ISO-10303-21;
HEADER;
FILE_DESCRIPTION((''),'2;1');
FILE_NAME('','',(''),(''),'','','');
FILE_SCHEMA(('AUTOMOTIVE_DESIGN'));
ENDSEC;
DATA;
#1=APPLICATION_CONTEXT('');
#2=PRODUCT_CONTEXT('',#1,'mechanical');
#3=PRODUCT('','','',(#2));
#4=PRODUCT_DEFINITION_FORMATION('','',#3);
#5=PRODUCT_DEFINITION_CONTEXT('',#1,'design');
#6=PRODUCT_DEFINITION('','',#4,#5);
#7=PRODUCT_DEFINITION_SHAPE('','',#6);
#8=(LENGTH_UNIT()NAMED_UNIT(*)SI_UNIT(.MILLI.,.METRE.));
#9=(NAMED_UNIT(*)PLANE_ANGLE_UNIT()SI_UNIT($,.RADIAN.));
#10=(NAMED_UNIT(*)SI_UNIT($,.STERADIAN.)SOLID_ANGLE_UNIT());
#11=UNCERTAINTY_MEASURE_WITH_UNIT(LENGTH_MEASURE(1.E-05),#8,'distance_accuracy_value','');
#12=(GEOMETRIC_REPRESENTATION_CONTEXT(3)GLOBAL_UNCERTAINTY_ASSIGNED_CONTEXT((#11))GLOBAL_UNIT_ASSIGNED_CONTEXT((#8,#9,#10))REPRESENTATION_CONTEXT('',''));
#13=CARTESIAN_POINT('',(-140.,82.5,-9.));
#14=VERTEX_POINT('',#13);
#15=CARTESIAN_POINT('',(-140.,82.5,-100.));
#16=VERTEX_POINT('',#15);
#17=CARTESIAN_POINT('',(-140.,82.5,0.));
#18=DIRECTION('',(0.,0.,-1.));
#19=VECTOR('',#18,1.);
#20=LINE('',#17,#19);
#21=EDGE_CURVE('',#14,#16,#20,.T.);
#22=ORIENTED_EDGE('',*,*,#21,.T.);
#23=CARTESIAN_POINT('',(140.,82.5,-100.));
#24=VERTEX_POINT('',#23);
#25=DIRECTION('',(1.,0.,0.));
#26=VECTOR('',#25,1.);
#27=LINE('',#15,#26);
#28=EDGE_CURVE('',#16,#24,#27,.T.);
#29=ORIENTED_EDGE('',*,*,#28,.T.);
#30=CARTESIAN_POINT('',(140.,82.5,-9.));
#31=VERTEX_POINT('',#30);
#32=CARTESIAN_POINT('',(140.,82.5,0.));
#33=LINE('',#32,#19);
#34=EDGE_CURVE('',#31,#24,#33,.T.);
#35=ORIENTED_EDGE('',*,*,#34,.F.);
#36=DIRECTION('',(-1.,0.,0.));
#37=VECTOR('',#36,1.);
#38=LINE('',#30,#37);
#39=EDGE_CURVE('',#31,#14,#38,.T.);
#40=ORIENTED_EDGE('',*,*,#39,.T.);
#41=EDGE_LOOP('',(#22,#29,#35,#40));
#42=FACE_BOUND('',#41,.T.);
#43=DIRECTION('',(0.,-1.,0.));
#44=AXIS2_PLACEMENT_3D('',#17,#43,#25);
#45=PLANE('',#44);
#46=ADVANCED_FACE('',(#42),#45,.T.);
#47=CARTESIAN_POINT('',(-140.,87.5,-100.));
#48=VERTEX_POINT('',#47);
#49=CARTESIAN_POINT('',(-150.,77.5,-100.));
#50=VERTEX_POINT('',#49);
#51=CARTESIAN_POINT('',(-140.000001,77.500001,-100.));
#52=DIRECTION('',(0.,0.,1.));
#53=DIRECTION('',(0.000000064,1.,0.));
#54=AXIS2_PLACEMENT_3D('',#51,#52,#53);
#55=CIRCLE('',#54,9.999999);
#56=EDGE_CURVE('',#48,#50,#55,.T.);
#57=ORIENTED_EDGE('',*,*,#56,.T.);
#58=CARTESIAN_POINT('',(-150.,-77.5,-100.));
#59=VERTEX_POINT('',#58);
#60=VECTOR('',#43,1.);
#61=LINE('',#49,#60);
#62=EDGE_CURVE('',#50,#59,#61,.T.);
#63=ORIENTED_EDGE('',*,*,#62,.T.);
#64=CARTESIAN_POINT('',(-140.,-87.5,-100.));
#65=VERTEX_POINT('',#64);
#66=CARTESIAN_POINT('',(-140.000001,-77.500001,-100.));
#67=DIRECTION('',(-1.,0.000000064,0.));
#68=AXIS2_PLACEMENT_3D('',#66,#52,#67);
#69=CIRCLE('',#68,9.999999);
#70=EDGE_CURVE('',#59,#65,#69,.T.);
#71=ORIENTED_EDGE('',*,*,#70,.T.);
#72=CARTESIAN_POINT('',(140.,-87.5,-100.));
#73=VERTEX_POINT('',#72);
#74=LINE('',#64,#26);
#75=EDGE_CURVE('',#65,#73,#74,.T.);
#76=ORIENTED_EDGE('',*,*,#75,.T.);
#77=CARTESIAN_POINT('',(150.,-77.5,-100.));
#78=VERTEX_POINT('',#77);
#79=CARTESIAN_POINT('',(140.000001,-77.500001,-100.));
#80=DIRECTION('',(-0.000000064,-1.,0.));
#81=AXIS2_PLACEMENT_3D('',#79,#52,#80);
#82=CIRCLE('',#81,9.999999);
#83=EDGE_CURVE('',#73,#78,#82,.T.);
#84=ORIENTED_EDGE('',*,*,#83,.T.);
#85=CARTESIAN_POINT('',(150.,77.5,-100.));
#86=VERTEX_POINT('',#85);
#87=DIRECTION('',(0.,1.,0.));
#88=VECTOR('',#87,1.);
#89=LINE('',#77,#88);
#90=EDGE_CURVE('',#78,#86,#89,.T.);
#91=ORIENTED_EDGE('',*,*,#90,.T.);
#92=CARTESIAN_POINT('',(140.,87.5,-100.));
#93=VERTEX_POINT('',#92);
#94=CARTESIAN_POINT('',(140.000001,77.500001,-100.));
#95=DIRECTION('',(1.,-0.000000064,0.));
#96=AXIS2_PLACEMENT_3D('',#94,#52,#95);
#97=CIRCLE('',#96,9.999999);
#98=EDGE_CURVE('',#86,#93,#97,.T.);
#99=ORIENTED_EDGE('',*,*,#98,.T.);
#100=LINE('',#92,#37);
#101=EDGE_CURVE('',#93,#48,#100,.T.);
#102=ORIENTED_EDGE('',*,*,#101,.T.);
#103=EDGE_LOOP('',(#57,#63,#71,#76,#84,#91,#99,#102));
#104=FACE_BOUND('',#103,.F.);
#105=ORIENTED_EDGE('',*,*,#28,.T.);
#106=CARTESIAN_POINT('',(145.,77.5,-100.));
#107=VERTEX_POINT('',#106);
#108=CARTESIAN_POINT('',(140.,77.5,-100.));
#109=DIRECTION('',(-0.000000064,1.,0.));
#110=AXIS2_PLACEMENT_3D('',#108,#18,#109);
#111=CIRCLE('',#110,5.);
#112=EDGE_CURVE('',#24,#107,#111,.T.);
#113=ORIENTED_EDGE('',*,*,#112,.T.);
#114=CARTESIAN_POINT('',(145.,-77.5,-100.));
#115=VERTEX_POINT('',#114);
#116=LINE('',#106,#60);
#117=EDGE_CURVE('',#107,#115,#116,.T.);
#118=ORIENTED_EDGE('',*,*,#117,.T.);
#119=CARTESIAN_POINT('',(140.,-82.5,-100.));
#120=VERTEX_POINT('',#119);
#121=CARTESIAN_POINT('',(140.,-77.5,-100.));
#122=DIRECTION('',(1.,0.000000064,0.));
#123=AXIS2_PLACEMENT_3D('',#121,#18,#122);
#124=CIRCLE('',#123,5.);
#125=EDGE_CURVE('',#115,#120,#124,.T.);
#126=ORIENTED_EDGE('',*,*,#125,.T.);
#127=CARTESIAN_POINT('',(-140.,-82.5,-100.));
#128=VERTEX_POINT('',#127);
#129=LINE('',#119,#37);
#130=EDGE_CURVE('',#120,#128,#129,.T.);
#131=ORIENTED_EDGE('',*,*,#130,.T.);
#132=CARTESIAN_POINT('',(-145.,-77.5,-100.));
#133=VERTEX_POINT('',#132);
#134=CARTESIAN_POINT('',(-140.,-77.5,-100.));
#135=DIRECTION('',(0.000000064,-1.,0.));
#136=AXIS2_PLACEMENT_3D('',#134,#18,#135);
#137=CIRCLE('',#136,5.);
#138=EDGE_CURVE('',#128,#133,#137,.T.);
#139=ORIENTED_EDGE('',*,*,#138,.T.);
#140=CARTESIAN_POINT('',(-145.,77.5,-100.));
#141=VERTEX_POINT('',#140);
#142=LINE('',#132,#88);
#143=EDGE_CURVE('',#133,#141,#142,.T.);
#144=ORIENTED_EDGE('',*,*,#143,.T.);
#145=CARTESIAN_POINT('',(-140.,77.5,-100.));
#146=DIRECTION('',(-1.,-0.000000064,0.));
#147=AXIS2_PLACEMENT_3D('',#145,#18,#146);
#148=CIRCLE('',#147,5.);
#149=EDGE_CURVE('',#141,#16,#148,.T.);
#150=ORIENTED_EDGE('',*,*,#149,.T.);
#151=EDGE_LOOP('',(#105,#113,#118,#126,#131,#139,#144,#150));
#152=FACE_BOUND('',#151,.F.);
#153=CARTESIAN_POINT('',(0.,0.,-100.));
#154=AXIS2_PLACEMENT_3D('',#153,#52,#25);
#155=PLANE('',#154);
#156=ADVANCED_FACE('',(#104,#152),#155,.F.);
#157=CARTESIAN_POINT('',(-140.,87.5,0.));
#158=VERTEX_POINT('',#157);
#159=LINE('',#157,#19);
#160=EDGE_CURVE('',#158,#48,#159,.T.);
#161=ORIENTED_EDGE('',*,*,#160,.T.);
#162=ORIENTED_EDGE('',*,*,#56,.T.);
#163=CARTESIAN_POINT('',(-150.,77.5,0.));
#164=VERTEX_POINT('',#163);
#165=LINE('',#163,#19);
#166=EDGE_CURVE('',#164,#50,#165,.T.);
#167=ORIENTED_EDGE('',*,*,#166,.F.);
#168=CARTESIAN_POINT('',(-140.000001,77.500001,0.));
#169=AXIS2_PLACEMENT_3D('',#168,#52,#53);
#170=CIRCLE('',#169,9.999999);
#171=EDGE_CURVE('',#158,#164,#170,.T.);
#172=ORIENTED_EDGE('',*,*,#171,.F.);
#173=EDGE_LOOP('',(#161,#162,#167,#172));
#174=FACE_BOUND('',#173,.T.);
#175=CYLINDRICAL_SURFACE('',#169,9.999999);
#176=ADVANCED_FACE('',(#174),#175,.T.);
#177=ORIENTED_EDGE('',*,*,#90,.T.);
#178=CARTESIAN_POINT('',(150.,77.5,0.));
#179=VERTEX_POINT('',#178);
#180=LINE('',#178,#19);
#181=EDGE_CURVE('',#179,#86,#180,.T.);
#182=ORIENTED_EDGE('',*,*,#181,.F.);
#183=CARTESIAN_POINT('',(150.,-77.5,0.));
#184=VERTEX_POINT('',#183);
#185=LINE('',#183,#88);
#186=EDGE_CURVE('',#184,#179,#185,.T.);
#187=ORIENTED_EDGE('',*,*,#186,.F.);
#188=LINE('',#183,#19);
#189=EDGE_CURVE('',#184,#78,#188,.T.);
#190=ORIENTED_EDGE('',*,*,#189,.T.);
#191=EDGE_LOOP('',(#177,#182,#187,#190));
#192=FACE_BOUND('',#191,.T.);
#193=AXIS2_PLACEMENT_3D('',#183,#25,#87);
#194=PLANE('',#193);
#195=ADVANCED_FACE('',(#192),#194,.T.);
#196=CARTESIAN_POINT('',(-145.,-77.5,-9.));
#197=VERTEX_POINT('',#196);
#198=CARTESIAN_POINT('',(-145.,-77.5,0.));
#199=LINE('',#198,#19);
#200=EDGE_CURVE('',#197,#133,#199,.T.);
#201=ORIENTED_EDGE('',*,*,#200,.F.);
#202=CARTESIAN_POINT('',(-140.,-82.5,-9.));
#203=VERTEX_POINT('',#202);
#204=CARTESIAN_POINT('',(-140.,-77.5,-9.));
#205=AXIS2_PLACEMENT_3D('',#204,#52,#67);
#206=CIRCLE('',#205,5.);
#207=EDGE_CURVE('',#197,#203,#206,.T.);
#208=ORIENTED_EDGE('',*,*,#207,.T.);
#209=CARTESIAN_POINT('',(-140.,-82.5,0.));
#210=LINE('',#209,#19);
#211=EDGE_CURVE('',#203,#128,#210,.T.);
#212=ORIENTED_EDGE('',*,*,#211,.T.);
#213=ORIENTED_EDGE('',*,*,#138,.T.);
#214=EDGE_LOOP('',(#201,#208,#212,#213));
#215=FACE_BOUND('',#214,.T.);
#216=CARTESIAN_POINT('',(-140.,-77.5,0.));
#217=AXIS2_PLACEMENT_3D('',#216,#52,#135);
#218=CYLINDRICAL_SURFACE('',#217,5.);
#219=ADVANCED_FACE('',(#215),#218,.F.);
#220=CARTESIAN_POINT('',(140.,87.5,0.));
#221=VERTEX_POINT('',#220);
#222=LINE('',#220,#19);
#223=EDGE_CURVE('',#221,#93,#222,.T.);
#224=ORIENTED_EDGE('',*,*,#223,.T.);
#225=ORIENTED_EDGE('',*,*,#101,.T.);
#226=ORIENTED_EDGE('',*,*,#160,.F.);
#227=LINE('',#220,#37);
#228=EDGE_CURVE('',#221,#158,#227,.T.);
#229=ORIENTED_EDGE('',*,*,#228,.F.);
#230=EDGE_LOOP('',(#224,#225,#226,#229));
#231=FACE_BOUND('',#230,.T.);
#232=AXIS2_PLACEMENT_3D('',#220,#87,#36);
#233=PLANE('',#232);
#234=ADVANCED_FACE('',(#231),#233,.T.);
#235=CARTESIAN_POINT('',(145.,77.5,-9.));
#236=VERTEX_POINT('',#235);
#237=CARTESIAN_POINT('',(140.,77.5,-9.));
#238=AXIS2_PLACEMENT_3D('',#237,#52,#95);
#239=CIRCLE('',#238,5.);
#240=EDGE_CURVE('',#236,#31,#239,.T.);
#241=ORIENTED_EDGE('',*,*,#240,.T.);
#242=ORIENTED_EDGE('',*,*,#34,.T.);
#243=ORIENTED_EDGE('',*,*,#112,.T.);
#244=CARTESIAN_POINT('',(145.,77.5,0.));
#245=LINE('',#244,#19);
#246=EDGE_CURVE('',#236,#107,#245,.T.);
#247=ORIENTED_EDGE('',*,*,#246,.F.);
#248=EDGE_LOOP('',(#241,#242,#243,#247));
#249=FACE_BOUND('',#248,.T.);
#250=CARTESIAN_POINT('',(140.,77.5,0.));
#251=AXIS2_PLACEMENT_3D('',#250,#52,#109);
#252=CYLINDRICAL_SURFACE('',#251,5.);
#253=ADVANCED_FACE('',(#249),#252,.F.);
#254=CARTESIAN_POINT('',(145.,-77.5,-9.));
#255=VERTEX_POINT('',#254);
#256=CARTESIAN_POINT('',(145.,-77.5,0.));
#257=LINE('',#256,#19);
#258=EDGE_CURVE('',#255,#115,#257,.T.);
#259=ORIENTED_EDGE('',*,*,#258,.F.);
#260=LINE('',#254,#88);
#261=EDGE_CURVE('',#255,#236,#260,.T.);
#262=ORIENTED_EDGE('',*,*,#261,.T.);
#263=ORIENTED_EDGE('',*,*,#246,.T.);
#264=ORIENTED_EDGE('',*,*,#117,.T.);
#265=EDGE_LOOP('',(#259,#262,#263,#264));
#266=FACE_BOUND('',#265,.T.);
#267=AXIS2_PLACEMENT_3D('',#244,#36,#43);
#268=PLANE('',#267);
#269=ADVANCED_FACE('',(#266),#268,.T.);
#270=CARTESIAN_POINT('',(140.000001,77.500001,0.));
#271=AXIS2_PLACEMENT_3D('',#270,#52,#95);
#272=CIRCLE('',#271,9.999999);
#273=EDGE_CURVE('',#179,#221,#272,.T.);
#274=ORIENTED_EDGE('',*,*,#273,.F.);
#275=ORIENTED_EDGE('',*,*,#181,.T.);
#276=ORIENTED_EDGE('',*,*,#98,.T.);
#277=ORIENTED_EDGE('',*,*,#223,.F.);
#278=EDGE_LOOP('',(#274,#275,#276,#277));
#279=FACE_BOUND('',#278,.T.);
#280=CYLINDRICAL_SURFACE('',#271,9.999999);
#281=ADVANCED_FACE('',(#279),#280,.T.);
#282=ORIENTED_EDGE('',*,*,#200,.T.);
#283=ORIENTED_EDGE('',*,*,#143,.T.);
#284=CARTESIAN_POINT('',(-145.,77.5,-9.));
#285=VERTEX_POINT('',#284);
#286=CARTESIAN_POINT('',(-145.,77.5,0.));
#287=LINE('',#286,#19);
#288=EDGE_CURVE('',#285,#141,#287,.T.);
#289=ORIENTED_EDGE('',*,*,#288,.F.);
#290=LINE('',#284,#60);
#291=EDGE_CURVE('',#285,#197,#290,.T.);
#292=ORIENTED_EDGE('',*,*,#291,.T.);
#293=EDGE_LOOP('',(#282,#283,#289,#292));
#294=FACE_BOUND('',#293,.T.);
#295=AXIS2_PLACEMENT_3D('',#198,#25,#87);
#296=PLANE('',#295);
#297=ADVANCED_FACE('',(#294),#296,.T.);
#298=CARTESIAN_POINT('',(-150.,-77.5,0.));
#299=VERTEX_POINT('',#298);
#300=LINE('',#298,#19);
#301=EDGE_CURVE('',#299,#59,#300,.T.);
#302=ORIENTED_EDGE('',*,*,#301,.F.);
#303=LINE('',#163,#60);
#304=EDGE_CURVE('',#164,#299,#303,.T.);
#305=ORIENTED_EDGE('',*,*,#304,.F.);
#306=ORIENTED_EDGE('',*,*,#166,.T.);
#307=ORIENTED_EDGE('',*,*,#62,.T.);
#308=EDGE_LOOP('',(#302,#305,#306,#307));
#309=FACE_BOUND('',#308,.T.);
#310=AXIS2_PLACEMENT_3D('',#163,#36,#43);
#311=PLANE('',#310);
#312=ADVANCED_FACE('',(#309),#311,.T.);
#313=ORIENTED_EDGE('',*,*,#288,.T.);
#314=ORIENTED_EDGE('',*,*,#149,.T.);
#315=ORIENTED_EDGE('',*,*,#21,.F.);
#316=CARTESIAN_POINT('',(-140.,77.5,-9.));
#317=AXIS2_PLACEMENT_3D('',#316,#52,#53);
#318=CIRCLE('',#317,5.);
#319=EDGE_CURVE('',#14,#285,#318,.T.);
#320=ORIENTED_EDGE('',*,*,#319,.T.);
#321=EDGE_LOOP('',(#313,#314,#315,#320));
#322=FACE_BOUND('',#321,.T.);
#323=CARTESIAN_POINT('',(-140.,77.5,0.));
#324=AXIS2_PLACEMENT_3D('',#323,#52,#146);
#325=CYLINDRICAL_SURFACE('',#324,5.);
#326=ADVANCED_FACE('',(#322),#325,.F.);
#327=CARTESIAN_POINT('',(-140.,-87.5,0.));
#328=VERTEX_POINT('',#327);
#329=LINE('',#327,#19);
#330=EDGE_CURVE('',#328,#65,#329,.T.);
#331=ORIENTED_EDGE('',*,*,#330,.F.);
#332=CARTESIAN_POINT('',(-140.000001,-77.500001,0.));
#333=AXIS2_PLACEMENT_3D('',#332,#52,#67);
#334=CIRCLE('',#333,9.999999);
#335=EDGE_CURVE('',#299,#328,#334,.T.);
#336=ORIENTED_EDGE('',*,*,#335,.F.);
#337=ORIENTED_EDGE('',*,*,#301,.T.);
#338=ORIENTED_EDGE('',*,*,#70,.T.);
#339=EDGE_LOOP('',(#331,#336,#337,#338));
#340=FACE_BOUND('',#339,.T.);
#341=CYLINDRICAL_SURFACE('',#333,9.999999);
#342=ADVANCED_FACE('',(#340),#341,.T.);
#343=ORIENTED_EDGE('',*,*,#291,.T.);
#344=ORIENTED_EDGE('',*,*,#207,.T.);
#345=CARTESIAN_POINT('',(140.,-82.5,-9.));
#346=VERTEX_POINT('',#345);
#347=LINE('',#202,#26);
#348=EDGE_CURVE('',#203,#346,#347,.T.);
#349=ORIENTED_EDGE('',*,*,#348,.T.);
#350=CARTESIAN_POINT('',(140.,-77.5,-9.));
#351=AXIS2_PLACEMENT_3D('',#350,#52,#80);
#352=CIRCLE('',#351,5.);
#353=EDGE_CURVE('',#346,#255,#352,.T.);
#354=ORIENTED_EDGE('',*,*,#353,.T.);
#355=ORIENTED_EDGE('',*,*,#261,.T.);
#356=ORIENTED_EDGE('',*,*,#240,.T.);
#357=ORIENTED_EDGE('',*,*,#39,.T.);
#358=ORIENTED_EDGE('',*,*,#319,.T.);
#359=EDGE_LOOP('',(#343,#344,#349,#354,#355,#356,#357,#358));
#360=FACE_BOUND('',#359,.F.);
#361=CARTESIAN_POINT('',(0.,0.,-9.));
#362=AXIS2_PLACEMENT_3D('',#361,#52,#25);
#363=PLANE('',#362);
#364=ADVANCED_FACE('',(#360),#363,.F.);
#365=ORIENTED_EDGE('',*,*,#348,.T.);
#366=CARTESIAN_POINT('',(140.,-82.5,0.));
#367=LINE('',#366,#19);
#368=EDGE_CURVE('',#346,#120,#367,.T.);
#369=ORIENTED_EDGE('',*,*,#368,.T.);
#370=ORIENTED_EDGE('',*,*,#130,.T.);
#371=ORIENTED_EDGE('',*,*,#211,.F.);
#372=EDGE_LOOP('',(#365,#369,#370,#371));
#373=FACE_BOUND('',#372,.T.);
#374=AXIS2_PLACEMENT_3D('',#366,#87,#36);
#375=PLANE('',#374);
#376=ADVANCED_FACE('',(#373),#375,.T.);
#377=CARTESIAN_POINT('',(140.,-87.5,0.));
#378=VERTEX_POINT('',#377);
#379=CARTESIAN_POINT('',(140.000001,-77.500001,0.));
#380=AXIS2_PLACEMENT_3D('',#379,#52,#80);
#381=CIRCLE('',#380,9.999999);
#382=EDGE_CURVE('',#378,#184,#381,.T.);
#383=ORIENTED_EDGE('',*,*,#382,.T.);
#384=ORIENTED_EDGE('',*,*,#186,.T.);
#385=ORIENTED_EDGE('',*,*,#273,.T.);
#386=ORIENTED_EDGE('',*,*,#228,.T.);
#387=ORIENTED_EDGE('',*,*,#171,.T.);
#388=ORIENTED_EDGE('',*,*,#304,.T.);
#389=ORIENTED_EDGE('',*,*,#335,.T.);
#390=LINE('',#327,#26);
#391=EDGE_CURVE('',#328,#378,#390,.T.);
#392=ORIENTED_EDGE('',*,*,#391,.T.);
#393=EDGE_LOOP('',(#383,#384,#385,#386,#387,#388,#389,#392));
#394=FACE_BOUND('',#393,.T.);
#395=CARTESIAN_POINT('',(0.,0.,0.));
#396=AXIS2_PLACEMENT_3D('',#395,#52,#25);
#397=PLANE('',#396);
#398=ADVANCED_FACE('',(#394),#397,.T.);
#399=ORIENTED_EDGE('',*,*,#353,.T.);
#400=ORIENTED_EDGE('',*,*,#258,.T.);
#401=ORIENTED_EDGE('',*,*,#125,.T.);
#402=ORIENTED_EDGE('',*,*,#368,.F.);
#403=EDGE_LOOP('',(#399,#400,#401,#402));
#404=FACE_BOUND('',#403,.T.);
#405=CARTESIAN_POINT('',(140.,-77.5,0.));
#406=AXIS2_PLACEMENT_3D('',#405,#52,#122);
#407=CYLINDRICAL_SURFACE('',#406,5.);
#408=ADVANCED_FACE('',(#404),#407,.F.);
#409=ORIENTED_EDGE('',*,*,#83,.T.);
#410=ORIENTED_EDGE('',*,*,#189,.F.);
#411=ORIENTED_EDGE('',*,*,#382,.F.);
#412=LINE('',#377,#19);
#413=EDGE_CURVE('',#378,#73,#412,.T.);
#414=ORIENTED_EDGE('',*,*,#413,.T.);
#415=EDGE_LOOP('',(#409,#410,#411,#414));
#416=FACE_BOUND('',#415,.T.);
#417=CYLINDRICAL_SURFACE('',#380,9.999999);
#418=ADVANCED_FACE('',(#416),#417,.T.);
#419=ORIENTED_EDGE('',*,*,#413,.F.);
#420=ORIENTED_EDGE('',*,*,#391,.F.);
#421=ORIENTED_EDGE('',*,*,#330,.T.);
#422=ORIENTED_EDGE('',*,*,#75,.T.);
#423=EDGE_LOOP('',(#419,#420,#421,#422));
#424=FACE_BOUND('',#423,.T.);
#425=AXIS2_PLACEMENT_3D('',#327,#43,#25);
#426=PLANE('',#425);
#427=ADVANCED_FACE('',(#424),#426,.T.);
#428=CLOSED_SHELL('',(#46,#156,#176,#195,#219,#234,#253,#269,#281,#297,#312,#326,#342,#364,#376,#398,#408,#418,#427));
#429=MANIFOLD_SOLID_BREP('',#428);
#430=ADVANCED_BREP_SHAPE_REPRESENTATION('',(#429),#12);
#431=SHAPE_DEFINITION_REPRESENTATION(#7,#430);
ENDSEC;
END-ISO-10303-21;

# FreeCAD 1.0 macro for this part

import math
import FreeCAD as App
import Part
import Sketcher

V = App.Vector

doc = App.newDocument("Part")
params = doc.addObject("Spreadsheet::Sheet", "Params")
for row, (alias, value) in enumerate([
    ("sketch1_radius", "9.999999 mm"),
    ("sketch1_radius2", "5 mm"),
    ("sketch1_width", "280 mm"),
    ("sketch1_height", "155 mm"),
    ("pad1_length", "100 mm"),
    ("sketch2_radius", "5 mm"),
    ("sketch2_width", "280 mm"),
    ("sketch2_height", "155 mm"),
    ("pad2_length", "9 mm"),
], start=1):
    params.set(f"A{row}", alias)
    params.set(f"B{row}", "=" + value)
    params.setAlias(f"B{row}", alias)

body = doc.addObject("PartDesign::Body", "Body")

sketch1 = body.newObject("Sketcher::SketchObject", "Sketch")
sketch1.AttachmentSupport = (doc.getObject("XY_Plane"), [""])
sketch1.MapMode = "FlatFace"
sketch1.addGeometry([
    Part.ArcOfCircle(Part.Circle(V(140, 77.5, 0), V(0, 0, 1), 10), math.radians(0), math.radians(90)),
    Part.LineSegment(V(140, 87.5, 0), V(-140, 87.5, 0)),
    Part.ArcOfCircle(Part.Circle(V(-140, 77.5, 0), V(0, 0, 1), 10), math.radians(90), math.radians(180)),
    Part.LineSegment(V(-150, 77.5, 0), V(-150, -77.5, 0)),
    Part.ArcOfCircle(Part.Circle(V(-140, -77.5, 0), V(0, 0, 1), 10), math.radians(180), math.radians(270)),
    Part.LineSegment(V(-140, -87.5, 0), V(140, -87.5, 0)),
    Part.ArcOfCircle(Part.Circle(V(140, -77.5, 0), V(0, 0, 1), 10), math.radians(-90), math.radians(0)),
    Part.LineSegment(V(150, -77.5, 0), V(150, 77.5, 0)),
    Part.LineSegment(V(-140, 82.5, 0), V(140, 82.5, 0)),
    Part.ArcOfCircle(Part.Circle(V(140, 77.5, 0), V(0, 0, 1), 5), math.radians(0), math.radians(90)),
    Part.LineSegment(V(145, 77.5, 0), V(145, -77.5, 0)),
    Part.ArcOfCircle(Part.Circle(V(140, -77.5, 0), V(0, 0, 1), 5), math.radians(-90), math.radians(0)),
    Part.LineSegment(V(140, -82.5, 0), V(-140, -82.5, 0)),
    Part.ArcOfCircle(Part.Circle(V(-140, -77.5, 0), V(0, 0, 1), 5), math.radians(180), math.radians(270)),
    Part.LineSegment(V(-145, -77.5, 0), V(-145, 77.5, 0)),
    Part.ArcOfCircle(Part.Circle(V(-140, 77.5, 0), V(0, 0, 1), 5), math.radians(90), math.radians(180)),
], False)
sketch1.addConstraint([
    Sketcher.Constraint("Tangent", 0, 2, 1, 1),
    Sketcher.Constraint("Tangent", 1, 2, 2, 1),
    Sketcher.Constraint("Tangent", 2, 2, 3, 1),
    Sketcher.Constraint("Tangent", 3, 2, 4, 1),
    Sketcher.Constraint("Tangent", 4, 2, 5, 1),
    Sketcher.Constraint("Tangent", 5, 2, 6, 1),
    Sketcher.Constraint("Tangent", 6, 2, 7, 1),
    Sketcher.Constraint("Tangent", 7, 2, 0, 1),
    Sketcher.Constraint("Tangent", 8, 2, 9, 2),
    Sketcher.Constraint("Tangent", 9, 1, 10, 1),
    Sketcher.Constraint("Tangent", 10, 2, 11, 2),
    Sketcher.Constraint("Tangent", 11, 1, 12, 1),
    Sketcher.Constraint("Tangent", 12, 2, 13, 2),
    Sketcher.Constraint("Tangent", 13, 1, 14, 1),
    Sketcher.Constraint("Tangent", 14, 2, 15, 2),
    Sketcher.Constraint("Tangent", 15, 1, 8, 1),
    Sketcher.Constraint("Horizontal", 1),
    Sketcher.Constraint("Vertical", 3),
    Sketcher.Constraint("Horizontal", 5),
    Sketcher.Constraint("Vertical", 7),
    Sketcher.Constraint("Horizontal", 8),
    Sketcher.Constraint("Vertical", 10),
    Sketcher.Constraint("Horizontal", 12),
    Sketcher.Constraint("Vertical", 14),
    Sketcher.Constraint("Coincident", 9, 3, 0, 3),
    Sketcher.Constraint("Coincident", 11, 3, 6, 3),
    Sketcher.Constraint("Coincident", 13, 3, 4, 3),
    Sketcher.Constraint("Equal", 0, 2),
    Sketcher.Constraint("Equal", 2, 4),
    Sketcher.Constraint("Equal", 4, 6),
    Sketcher.Constraint("Equal", 13, 15),
    Sketcher.Constraint("Symmetric", 0, 3, 4, 3, -1, 1),
    Sketcher.Constraint("Radius", 0, 9.999999),
    Sketcher.Constraint("Radius", 9, 5.0),
    Sketcher.Constraint("DistanceX", 1, 2, 1, 1, 280.0),
    Sketcher.Constraint("DistanceY", 3, 2, 3, 1, 155.0),
])
sketch1.setExpression("Constraints[32]", "Params.sketch1_radius")
sketch1.setExpression("Constraints[33]", "Params.sketch1_radius2")
sketch1.setExpression("Constraints[34]", "Params.sketch1_width")
sketch1.setExpression("Constraints[35]", "Params.sketch1_height")
pad1 = body.newObject("PartDesign::Pad", "Pad")
pad1.Profile = sketch1
pad1.setExpression("Length", "Params.pad1_length")
pad1.Reversed = True

sketch2 = body.newObject("Sketcher::SketchObject", "Sketch001")
sketch2.AttachmentSupport = (doc.getObject("XY_Plane"), [""])
sketch2.MapMode = "FlatFace"
sketch2.addGeometry([
    Part.LineSegment(V(145, -77.5, 0), V(145, 77.5, 0)),
    Part.ArcOfCircle(Part.Circle(V(140, 77.5, 0), V(0, 0, 1), 5), math.radians(0), math.radians(90)),
    Part.LineSegment(V(140, 82.5, 0), V(-140, 82.5, 0)),
    Part.ArcOfCircle(Part.Circle(V(-140, 77.5, 0), V(0, 0, 1), 5), math.radians(90), math.radians(180)),
    Part.LineSegment(V(-145, 77.5, 0), V(-145, -77.5, 0)),
    Part.ArcOfCircle(Part.Circle(V(-140, -77.5, 0), V(0, 0, 1), 5), math.radians(180), math.radians(270)),
    Part.LineSegment(V(-140, -82.5, 0), V(140, -82.5, 0)),
    Part.ArcOfCircle(Part.Circle(V(140, -77.5, 0), V(0, 0, 1), 5), math.radians(-90), math.radians(0)),
], False)
sketch2.addConstraint([
    Sketcher.Constraint("Tangent", 0, 2, 1, 1),
    Sketcher.Constraint("Tangent", 1, 2, 2, 1),
    Sketcher.Constraint("Tangent", 2, 2, 3, 1),
    Sketcher.Constraint("Tangent", 3, 2, 4, 1),
    Sketcher.Constraint("Tangent", 4, 2, 5, 1),
    Sketcher.Constraint("Tangent", 5, 2, 6, 1),
    Sketcher.Constraint("Tangent", 6, 2, 7, 1),
    Sketcher.Constraint("Tangent", 7, 2, 0, 1),
    Sketcher.Constraint("Vertical", 0),
    Sketcher.Constraint("Horizontal", 2),
    Sketcher.Constraint("Vertical", 4),
    Sketcher.Constraint("Horizontal", 6),
    Sketcher.Constraint("Equal", 1, 3),
    Sketcher.Constraint("Equal", 3, 5),
    Sketcher.Constraint("Equal", 5, 7),
    Sketcher.Constraint("Symmetric", 1, 3, 5, 3, -1, 1),
    Sketcher.Constraint("Radius", 1, 5.0),
    Sketcher.Constraint("DistanceX", 2, 2, 2, 1, 280.0),
    Sketcher.Constraint("DistanceY", 0, 1, 0, 2, 155.0),
])
sketch2.setExpression("Constraints[16]", "Params.sketch2_radius")
sketch2.setExpression("Constraints[17]", "Params.sketch2_width")
sketch2.setExpression("Constraints[18]", "Params.sketch2_height")
pad2 = body.newObject("PartDesign::Pad", "Pad001")
pad2.Profile = sketch2
pad2.setExpression("Length", "Params.pad2_length")
pad2.Reversed = True

doc.recompute()
